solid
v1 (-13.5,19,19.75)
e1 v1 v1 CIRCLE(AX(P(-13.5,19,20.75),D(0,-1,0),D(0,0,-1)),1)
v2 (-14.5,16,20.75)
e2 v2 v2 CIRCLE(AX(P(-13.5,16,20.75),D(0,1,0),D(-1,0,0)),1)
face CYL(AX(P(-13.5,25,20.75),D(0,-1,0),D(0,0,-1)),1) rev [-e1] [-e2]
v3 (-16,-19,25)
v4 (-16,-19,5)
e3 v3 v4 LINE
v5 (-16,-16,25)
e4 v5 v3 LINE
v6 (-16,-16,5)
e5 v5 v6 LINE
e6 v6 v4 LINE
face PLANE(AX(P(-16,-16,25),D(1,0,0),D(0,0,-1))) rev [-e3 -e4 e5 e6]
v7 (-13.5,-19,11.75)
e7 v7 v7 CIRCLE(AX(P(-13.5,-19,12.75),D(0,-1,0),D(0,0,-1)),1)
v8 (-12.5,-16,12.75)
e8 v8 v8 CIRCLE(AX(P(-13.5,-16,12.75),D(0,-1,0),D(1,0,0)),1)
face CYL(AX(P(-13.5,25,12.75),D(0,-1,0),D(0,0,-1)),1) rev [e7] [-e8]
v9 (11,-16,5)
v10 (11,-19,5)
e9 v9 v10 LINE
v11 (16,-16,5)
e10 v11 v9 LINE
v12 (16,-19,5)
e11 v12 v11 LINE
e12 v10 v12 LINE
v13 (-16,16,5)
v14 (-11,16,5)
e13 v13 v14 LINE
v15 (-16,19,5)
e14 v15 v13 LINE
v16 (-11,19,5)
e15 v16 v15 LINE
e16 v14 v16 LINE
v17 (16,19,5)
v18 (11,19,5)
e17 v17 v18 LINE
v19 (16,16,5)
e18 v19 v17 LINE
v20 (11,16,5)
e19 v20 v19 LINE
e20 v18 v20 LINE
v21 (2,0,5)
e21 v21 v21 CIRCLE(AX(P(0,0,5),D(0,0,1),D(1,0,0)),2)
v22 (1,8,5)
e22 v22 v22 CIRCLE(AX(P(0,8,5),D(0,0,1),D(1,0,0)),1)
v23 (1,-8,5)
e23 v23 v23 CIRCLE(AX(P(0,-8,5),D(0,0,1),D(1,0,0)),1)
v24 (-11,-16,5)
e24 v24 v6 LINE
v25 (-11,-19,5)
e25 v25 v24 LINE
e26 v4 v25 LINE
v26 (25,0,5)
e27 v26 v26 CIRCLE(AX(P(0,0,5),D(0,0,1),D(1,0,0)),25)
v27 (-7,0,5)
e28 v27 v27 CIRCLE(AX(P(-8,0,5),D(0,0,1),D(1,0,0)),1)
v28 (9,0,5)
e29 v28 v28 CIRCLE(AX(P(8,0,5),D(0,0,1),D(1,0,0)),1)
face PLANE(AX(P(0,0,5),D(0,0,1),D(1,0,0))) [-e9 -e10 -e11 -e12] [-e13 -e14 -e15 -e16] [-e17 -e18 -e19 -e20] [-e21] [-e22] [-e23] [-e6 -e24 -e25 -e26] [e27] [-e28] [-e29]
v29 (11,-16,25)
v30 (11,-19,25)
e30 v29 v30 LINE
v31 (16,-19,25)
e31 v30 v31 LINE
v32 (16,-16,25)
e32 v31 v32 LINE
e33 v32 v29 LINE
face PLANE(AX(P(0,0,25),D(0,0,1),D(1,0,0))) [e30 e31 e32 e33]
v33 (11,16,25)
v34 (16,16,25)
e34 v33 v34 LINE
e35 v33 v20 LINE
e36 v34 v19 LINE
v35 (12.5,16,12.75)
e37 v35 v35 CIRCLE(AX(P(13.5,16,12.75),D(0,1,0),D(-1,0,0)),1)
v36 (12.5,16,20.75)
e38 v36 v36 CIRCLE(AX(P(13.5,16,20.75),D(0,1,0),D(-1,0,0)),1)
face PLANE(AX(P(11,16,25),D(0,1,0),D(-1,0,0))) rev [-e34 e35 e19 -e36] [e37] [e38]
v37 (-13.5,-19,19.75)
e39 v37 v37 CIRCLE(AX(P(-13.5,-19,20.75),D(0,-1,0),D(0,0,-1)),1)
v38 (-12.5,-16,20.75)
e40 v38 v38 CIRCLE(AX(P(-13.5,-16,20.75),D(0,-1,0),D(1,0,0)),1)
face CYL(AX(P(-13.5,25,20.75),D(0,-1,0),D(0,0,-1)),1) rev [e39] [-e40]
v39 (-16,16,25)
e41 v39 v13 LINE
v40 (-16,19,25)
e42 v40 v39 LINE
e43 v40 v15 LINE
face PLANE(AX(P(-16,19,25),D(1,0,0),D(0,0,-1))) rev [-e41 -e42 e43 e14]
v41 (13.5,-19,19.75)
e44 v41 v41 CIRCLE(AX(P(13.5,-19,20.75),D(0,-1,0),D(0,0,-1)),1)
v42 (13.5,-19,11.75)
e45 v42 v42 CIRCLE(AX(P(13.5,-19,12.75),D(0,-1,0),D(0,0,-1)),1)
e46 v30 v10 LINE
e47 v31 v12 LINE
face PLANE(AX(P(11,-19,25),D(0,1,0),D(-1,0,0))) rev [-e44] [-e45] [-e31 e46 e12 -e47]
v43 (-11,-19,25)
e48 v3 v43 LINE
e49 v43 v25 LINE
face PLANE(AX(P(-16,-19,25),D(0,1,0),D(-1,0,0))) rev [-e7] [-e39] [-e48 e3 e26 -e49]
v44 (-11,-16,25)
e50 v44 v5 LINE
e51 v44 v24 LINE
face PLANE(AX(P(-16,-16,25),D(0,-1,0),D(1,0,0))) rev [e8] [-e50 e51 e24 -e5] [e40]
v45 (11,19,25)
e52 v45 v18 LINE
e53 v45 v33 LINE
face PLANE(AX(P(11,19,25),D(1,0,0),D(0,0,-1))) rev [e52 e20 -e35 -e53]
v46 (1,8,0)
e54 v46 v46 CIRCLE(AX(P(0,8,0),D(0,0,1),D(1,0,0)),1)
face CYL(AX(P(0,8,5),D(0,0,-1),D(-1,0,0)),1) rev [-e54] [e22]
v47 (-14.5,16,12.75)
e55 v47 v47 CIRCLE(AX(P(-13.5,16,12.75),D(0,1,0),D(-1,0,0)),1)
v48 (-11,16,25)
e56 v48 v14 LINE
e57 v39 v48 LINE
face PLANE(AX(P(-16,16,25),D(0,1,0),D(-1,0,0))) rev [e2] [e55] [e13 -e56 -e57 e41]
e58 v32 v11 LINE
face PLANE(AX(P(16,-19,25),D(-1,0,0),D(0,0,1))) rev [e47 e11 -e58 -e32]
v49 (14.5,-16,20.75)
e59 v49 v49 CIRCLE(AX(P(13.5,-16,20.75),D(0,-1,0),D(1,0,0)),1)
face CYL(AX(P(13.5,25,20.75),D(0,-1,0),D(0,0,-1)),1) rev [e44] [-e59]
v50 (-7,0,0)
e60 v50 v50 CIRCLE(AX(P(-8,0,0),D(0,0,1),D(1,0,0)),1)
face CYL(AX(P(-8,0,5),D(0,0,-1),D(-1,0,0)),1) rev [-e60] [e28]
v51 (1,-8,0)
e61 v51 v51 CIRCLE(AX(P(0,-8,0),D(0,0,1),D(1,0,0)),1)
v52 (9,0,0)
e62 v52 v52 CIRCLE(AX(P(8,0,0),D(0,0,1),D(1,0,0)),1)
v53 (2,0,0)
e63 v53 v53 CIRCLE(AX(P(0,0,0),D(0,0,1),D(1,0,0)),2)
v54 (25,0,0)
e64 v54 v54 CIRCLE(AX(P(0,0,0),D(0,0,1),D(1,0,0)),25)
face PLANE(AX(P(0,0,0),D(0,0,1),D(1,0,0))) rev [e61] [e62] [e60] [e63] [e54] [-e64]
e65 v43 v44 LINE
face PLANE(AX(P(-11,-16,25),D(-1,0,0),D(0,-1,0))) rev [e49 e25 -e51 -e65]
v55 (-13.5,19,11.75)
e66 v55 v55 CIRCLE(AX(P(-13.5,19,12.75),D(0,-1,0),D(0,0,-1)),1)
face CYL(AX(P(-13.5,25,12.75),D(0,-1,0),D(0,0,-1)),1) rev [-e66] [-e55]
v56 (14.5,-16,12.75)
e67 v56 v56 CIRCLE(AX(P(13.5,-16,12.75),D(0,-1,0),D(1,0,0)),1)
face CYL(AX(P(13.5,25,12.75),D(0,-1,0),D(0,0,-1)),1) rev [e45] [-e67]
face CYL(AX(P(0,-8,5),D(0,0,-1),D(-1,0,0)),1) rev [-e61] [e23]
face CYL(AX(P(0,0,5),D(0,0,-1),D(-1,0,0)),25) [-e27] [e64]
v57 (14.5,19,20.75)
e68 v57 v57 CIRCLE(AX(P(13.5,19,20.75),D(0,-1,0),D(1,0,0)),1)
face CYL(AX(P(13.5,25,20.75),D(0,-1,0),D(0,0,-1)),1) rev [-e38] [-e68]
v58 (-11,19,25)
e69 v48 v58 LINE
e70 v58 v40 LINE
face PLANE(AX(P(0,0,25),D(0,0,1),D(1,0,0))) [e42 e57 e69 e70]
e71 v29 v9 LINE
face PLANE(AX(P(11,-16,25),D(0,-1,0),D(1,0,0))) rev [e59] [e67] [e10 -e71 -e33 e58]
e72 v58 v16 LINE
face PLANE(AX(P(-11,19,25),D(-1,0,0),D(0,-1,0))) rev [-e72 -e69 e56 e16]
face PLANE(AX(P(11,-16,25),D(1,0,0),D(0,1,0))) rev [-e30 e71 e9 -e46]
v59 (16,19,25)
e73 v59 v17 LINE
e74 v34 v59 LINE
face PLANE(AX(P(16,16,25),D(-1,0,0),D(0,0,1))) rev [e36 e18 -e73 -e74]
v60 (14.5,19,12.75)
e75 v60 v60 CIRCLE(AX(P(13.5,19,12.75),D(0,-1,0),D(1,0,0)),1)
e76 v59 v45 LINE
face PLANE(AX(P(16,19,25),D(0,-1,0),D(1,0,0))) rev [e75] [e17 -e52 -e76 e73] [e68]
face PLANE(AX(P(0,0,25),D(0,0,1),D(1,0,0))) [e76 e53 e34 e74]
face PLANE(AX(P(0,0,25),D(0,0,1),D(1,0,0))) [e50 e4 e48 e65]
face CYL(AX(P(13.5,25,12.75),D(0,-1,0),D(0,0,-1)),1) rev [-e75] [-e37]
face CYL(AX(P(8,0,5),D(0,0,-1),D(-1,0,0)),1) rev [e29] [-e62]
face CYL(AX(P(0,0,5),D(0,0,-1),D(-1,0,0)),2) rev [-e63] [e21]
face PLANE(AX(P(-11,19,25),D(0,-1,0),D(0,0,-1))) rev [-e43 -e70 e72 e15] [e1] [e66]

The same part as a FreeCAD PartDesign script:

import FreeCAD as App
import Part
import Sketcher
from FreeCAD import Vector


def add_polygon(sketch, points):
    """Adds a closed chain of lines whose ends are joined by coincident constraints."""
    first, n = sketch.GeometryCount, len(points)
    for a, b in zip(points, points[1:] + points[:1]):
        sketch.addGeometry(Part.LineSegment(App.Vector(*a, 0), App.Vector(*b, 0)), False)
    for i in range(n):
        sketch.addConstraint(Sketcher.Constraint("Coincident", first + i, 2, first + (i + 1) % n, 1))

doc = App.newDocument("Part")
body = doc.addObject("PartDesign::Body", "Body")

# Sketch on XY plane
sketch1 = body.newObject("Sketcher::SketchObject", "Sketch")
sketch1.AttachmentSupport = (doc.getObject("XY_Plane"), [""])
sketch1.MapMode = "FlatFace"
sketch1.addGeometry(Part.Circle(Vector(0, 0, 0), Vector(0, 0, 1), 25), False)
sketch1.addGeometry(Part.Circle(Vector(0, -8, 0), Vector(0, 0, 1), 1), False)
sketch1.addGeometry(Part.Circle(Vector(-8, 0, 0), Vector(0, 0, 1), 1), False)
sketch1.addGeometry(Part.Circle(Vector(0, 0, 0), Vector(0, 0, 1), 2), False)
sketch1.addGeometry(Part.Circle(Vector(8, 0, 0), Vector(0, 0, 1), 1), False)
sketch1.addGeometry(Part.Circle(Vector(0, 8, 0), Vector(0, 0, 1), 1), False)
sketch1.addConstraint(Sketcher.Constraint("Coincident", 0, 3, -1, 1))
sketch1.addConstraint(Sketcher.Constraint("Coincident", 3, 3, -1, 1))
sketch1.addConstraint(Sketcher.Constraint("Equal", 1, 2))
sketch1.addConstraint(Sketcher.Constraint("Equal", 2, 4))
sketch1.addConstraint(Sketcher.Constraint("Equal", 4, 5))
sketch1.addConstraint(Sketcher.Constraint("Symmetric", 2, 3, 4, 3, -1, 1))
sketch1.addConstraint(Sketcher.Constraint("Symmetric", 1, 3, 5, 3, -1, 1))
sketch1.addConstraint(Sketcher.Constraint("PointOnObject", 1, 3, -2))
sketch1.addConstraint(Sketcher.Constraint("PointOnObject", 2, 3, -1))
sketch1.addConstraint(Sketcher.Constraint("Diameter", 0, 50.0))
sketch1.addConstraint(Sketcher.Constraint("Diameter", 1, 2.0))
sketch1.addConstraint(Sketcher.Constraint("Diameter", 3, 4.0))
sketch1.addConstraint(Sketcher.Constraint("DistanceY", 1, 3, -1, 1, 8.0))
sketch1.addConstraint(Sketcher.Constraint("DistanceX", 2, 3, -1, 1, 8.0))
pad1 = body.newObject("PartDesign::Pad", "Pad")
pad1.Profile = sketch1
pad1.Length = 5

# Sketch on XY plane
sketch2 = body.newObject("Sketcher::SketchObject", "Sketch001")
sketch2.AttachmentSupport = (doc.getObject("XY_Plane"), [""])
sketch2.MapMode = "FlatFace"
sketch2.AttachmentOffset = App.Placement(Vector(0, 0, 5), App.Rotation())
add_polygon(sketch2, [(-16, 19), (-16, 16), (-11, 16), (-11, 19)])  # lines 0-3
add_polygon(sketch2, [(11, 19), (11, 16), (16, 16), (16, 19)])  # lines 4-7
add_polygon(sketch2, [(-16, -16), (-16, -19), (-11, -19), (-11, -16)])  # lines 8-11
add_polygon(sketch2, [(11, -16), (11, -19), (16, -19), (16, -16)])  # lines 12-15
sketch2.addConstraint(Sketcher.Constraint("Vertical", 0))
sketch2.addConstraint(Sketcher.Constraint("Horizontal", 1))
sketch2.addConstraint(Sketcher.Constraint("Vertical", 2))
sketch2.addConstraint(Sketcher.Constraint("Horizontal", 3))
sketch2.addConstraint(Sketcher.Constraint("Vertical", 4))
sketch2.addConstraint(Sketcher.Constraint("Horizontal", 5))
sketch2.addConstraint(Sketcher.Constraint("Vertical", 6))
sketch2.addConstraint(Sketcher.Constraint("Horizontal", 7))
sketch2.addConstraint(Sketcher.Constraint("Vertical", 8))
sketch2.addConstraint(Sketcher.Constraint("Horizontal", 9))
sketch2.addConstraint(Sketcher.Constraint("Vertical", 10))
sketch2.addConstraint(Sketcher.Constraint("Horizontal", 11))
sketch2.addConstraint(Sketcher.Constraint("Vertical", 12))
sketch2.addConstraint(Sketcher.Constraint("Horizontal", 13))
sketch2.addConstraint(Sketcher.Constraint("Vertical", 14))
sketch2.addConstraint(Sketcher.Constraint("Horizontal", 15))
sketch2.addConstraint(Sketcher.Constraint("Symmetric", 6, 2, 8, 2, -1, 1))
sketch2.addConstraint(Sketcher.Constraint("Symmetric", 4, 2, 10, 2, -1, 1))
sketch2.addConstraint(Sketcher.Constraint("Symmetric", 2, 2, 12, 2, -1, 1))
sketch2.addConstraint(Sketcher.Constraint("Symmetric", 0, 2, 14, 2, -1, 1))
sketch2.addConstraint(Sketcher.Constraint("Symmetric", 1, 2, 4, 2, -2))
sketch2.addConstraint(Sketcher.Constraint("Symmetric", 3, 2, 6, 2, -2))
sketch2.addConstraint(Sketcher.Constraint("DistanceX", 1, 1, 1, 2, 5.0))
sketch2.addConstraint(Sketcher.Constraint("DistanceY", 0, 2, 0, 1, 3.0))
sketch2.addConstraint(Sketcher.Constraint("DistanceX", 0, 2, -1, 1, 16.0))
sketch2.addConstraint(Sketcher.Constraint("DistanceY", -1, 1, 0, 2, 16.0))
pad2 = body.newObject("PartDesign::Pad", "Pad001")
pad2.Profile = sketch2
pad2.Length = 20

# Sketch on XZ plane
sketch3 = body.newObject("Sketcher::SketchObject", "Sketch002")
sketch3.AttachmentSupport = (doc.getObject("XZ_Plane"), [""])
sketch3.MapMode = "FlatFace"
sketch3.AttachmentOffset = App.Placement(Vector(0, 0, 19), App.Rotation())
sketch3.addGeometry(Part.Circle(Vector(-13.5, 20.8, 0), Vector(0, 0, 1), 1), False)
sketch3.addGeometry(Part.Circle(Vector(-13.5, 12.8, 0), Vector(0, 0, 1), 1), False)
sketch3.addGeometry(Part.Circle(Vector(13.5, 20.8, 0), Vector(0, 0, 1), 1), False)
sketch3.addGeometry(Part.Circle(Vector(13.5, 12.8, 0), Vector(0, 0, 1), 1), False)
sketch3.addConstraint(Sketcher.Constraint("Equal", 0, 1))
sketch3.addConstraint(Sketcher.Constraint("Equal", 1, 2))
sketch3.addConstraint(Sketcher.Constraint("Equal", 2, 3))
sketch3.addConstraint(Sketcher.Constraint("Symmetric", 0, 3, 2, 3, -2))
sketch3.addConstraint(Sketcher.Constraint("Symmetric", 1, 3, 3, 3, -2))
sketch3.addConstraint(Sketcher.Constraint("Vertical", 0, 3, 1, 3))
sketch3.addConstraint(Sketcher.Constraint("Diameter", 0, 2.0))
sketch3.addConstraint(Sketcher.Constraint("DistanceY", 1, 3, 0, 3, 8.0))
sketch3.addConstraint(Sketcher.Constraint("DistanceX", 0, 3, 2, 3, 27.0))
sketch3.addConstraint(Sketcher.Constraint("DistanceY", -1, 1, 0, 3, 20.75))
pocket1 = body.newObject("PartDesign::Pocket", "Pocket")
pocket1.Profile = sketch3
pocket1.Type = "ThroughAll"

doc.recompute()
